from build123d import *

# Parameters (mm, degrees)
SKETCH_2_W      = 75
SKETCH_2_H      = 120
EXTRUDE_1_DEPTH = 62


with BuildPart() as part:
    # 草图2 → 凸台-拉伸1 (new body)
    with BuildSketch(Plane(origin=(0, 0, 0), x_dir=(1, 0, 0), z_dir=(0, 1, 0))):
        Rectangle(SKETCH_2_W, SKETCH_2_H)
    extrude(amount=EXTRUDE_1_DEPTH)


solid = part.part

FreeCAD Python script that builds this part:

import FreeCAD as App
import Part
import Sketcher
Q = App.Units.Quantity

doc = App.newDocument("Part")
body = doc.addObject("PartDesign::Body", "Body")

sketch1 = body.newObject("Sketcher::SketchObject", "Sketch")
sketch1.AttachmentSupport = (doc.getObject("XZ_Plane"), [""])
sketch1.MapMode = "FlatFace"
sketch1.addGeometry(Part.LineSegment(App.Vector(-38, -60, 0), App.Vector(-38, 60, 0)), False)
sketch1.addGeometry(Part.LineSegment(App.Vector(-38, 60, 0), App.Vector(38, 60, 0)), False)
sketch1.addGeometry(Part.LineSegment(App.Vector(38, 60, 0), App.Vector(38, -60, 0)), False)
sketch1.addGeometry(Part.LineSegment(App.Vector(38, -60, 0), App.Vector(-38, -60, 0)), False)
sketch1.addConstraint(Sketcher.Constraint("Coincident", 0, 2, 1, 1))
sketch1.addConstraint(Sketcher.Constraint("Coincident", 1, 2, 2, 1))
sketch1.addConstraint(Sketcher.Constraint("Coincident", 2, 2, 3, 1))
sketch1.addConstraint(Sketcher.Constraint("Coincident", 3, 2, 0, 1))
sketch1.addConstraint(Sketcher.Constraint("Vertical", 0))
sketch1.addConstraint(Sketcher.Constraint("Horizontal", 1))
sketch1.addConstraint(Sketcher.Constraint("Vertical", 2))
sketch1.addConstraint(Sketcher.Constraint("Horizontal", 3))
sketch1.addConstraint(Sketcher.Constraint("Symmetric", 0, 2, 2, 2, -1, 1))
sketch1.addConstraint(Sketcher.Constraint("DistanceX", 1, 1, 1, 2, Q("75 mm")))
sketch1.addConstraint(Sketcher.Constraint("DistanceY", 0, 1, 0, 2, Q("120 mm")))
pad1 = body.newObject("PartDesign::Pad", "Pad")
pad1.Profile = sketch1
pad1.Length = 62
pad1.Reversed = True

doc.recompute()
